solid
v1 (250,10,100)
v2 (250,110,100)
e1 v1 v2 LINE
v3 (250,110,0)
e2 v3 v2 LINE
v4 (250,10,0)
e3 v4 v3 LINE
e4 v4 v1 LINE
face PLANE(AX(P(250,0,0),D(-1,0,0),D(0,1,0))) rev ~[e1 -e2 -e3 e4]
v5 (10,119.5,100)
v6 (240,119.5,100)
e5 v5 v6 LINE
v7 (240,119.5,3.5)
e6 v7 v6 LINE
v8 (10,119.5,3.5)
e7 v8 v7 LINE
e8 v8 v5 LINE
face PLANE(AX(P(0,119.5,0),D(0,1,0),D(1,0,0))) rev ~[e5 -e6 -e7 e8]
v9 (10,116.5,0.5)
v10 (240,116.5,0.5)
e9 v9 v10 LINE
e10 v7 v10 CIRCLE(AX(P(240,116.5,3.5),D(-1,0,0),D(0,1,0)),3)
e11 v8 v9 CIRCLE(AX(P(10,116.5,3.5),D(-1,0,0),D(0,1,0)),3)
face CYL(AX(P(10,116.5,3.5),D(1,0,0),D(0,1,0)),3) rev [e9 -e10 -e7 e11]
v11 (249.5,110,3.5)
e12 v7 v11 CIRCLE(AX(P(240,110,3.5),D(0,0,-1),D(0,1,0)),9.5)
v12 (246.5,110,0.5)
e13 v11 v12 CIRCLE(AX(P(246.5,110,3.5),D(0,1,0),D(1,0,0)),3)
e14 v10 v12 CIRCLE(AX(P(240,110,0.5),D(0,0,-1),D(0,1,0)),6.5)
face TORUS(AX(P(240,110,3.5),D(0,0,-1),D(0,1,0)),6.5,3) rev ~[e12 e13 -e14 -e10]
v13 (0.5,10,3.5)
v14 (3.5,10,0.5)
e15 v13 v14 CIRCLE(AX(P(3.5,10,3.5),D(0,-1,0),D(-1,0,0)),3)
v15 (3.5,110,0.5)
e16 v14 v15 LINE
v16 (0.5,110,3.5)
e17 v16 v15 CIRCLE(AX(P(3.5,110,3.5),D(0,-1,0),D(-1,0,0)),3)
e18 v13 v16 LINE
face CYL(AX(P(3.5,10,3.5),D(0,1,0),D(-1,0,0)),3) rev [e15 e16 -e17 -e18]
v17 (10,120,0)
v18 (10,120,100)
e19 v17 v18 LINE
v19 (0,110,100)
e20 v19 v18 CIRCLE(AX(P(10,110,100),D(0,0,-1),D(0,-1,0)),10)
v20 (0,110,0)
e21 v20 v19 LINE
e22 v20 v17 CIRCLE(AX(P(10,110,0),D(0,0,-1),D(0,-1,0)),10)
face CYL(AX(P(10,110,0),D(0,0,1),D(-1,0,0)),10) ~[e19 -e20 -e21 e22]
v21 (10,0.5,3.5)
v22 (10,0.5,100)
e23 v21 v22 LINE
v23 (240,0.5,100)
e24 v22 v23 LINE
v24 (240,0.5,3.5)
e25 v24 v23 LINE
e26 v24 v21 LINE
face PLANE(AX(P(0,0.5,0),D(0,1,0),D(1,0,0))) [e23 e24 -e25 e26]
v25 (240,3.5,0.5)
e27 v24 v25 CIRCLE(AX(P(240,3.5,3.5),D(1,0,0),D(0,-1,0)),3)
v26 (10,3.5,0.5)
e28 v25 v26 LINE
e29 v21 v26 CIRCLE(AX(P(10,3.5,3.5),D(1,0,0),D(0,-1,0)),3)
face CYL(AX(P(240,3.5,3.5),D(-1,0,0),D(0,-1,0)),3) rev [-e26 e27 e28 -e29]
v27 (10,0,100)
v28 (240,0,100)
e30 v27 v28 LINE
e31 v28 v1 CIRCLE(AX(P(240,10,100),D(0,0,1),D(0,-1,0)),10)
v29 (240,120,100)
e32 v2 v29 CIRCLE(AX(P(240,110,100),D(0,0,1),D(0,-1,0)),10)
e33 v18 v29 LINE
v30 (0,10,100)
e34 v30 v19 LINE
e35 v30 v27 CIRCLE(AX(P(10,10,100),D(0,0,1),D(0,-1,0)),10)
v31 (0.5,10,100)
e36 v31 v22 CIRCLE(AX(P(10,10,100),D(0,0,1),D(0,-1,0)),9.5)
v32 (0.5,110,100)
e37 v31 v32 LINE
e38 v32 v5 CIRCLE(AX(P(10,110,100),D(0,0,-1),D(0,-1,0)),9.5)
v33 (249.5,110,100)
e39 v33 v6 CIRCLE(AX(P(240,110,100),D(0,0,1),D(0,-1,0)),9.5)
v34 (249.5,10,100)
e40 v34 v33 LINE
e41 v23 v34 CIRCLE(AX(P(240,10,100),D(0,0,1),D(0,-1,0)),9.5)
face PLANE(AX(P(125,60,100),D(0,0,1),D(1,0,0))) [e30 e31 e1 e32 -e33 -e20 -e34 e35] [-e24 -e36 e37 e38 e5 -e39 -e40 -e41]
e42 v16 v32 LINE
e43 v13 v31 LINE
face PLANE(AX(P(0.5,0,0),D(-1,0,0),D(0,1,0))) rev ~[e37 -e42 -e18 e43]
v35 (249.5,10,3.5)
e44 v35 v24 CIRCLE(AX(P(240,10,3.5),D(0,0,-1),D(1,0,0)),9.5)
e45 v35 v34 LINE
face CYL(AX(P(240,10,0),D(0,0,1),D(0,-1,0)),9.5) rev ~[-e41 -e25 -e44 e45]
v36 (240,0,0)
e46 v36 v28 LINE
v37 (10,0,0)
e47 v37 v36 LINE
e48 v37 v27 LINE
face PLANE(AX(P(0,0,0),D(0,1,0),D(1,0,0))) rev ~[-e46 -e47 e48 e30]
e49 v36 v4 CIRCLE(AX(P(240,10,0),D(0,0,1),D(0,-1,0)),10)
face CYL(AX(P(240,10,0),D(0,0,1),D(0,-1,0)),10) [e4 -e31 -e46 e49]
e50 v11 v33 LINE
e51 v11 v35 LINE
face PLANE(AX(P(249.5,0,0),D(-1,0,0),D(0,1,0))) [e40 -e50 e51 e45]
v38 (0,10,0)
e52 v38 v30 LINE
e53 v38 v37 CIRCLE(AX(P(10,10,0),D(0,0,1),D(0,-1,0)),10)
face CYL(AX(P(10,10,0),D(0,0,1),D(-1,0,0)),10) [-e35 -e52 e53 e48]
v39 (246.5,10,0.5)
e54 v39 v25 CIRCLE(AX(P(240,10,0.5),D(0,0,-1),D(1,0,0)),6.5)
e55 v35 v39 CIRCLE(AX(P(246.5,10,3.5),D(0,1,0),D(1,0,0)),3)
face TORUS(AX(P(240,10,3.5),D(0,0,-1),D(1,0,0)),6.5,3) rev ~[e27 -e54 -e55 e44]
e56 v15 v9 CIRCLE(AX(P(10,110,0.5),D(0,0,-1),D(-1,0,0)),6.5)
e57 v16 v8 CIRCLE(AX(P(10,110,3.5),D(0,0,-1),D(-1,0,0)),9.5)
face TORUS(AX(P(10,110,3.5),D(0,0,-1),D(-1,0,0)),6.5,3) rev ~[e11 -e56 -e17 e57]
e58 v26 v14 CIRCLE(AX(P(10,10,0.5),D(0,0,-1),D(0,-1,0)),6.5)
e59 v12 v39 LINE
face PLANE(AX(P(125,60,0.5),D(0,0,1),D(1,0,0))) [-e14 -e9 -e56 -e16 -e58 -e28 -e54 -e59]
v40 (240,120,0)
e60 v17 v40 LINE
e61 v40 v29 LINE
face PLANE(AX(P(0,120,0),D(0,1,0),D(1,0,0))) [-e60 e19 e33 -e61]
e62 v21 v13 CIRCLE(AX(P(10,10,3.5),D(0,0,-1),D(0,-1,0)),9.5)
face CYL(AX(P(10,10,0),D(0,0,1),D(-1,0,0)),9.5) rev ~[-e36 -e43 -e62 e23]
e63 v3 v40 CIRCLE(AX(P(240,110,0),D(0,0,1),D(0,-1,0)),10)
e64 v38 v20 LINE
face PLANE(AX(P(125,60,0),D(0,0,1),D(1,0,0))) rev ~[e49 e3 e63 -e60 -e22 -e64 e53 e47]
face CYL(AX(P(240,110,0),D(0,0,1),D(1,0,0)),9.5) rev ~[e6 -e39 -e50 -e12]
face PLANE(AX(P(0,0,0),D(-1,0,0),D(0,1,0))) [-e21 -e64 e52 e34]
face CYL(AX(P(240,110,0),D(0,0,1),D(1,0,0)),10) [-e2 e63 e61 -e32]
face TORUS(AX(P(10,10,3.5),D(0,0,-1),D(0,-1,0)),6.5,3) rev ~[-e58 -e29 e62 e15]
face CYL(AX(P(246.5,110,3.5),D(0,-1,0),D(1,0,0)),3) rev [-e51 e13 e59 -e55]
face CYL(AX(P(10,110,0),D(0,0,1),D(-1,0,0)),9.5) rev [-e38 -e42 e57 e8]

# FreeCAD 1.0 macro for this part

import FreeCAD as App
import Part
import Sketcher

V = App.Vector
Q = App.Units.Quantity


def edges_at(feature, points):
    """Names of the edges that pass closest to the given points."""
    edges = feature.Shape.Edges
    near = lambda p: min(range(len(edges)), key=lambda i: edges[i].distToShape(Part.Vertex(*p))[0])
    return sorted({f"Edge{near(p) + 1}" for p in points})


def faces_at(feature, points):
    """Names of the faces that lie closest to the given points."""
    faces = feature.Shape.Faces
    near = lambda p: min(range(len(faces)), key=lambda i: faces[i].distToShape(Part.Vertex(*p))[0])
    return sorted({f"Face{near(p) + 1}" for p in points})


def add_polygon(sketch, points):
    """Adds a closed chain of lines whose ends are joined by coincident constraints."""
    first, n = sketch.GeometryCount, len(points)
    for a, b in zip(points, points[1:] + points[:1]):
        sketch.addGeometry(Part.LineSegment(App.Vector(*a, 0), App.Vector(*b, 0)), False)
    for i in range(n):
        sketch.addConstraint(Sketcher.Constraint("Coincident", first + i, 2, first + (i + 1) % n, 1))

doc = App.newDocument("Part")
body = doc.addObject("PartDesign::Body", "Body")

# Sketch on XY plane
sketch1 = doc.addObject("Sketcher::SketchObject", "Sketch")
body.addObject(sketch1)
sketch1.AttachmentSupport = (doc.XY_Plane, [""])
sketch1.MapMode = "FlatFace"
add_polygon(sketch1, [(0, 120), (0, 0), (250, 0), (250, 120)])  # lines 0-3
sketch1.addConstraint([
    Sketcher.Constraint("Vertical", 0),
    Sketcher.Constraint("Horizontal", 1),
    Sketcher.Constraint("Vertical", 2),
    Sketcher.Constraint("Horizontal", 3),
    Sketcher.Constraint("Coincident", 0, 2, -1, 1),
    Sketcher.Constraint("DistanceX", 1, 1, 1, 2, Q("250 mm")),
    Sketcher.Constraint("DistanceY", 0, 2, 0, 1, Q("120 mm")),
])
pad1 = doc.addObject("PartDesign::Pad", "Pad")
body.addObject(pad1)
pad1.Profile = sketch1
pad1.Length = 100
doc.recompute()

fillet = doc.addObject("PartDesign::Fillet", "Fillet")
body.addObject(fillet)
fillet.Base = (pad1, edges_at(pad1, [
    (0, 0, 50),
    (250, 0, 50),
    (250, 120, 50),
    (0, 120, 50),
]))
fillet.Radius = 10
doc.recompute()

thickness = doc.addObject("PartDesign::Thickness", "Thickness")
body.addObject(thickness)
thickness.Base = (fillet, faces_at(fillet, [(125, 60, 100)]))
thickness.Value = 0.5
thickness.Reversed = True
thickness.Join = "Arc"
doc.recompute()

fillet2 = doc.addObject("PartDesign::Fillet", "Fillet001")
body.addObject(fillet2)
fillet2.Base = (thickness, edges_at(thickness, [
    (0.5, 60, 0.5),
    (3.282, 3.282, 0.5),
    (125, 0.5, 0.5),
    (246.718, 3.282, 0.5),
    (249.5, 60, 0.5),
    (246.718, 116.718, 0.5),
    (125, 119.5, 0.5),
    (3.282, 116.718, 0.5),
]))
fillet2.Radius = 3

doc.recompute()
